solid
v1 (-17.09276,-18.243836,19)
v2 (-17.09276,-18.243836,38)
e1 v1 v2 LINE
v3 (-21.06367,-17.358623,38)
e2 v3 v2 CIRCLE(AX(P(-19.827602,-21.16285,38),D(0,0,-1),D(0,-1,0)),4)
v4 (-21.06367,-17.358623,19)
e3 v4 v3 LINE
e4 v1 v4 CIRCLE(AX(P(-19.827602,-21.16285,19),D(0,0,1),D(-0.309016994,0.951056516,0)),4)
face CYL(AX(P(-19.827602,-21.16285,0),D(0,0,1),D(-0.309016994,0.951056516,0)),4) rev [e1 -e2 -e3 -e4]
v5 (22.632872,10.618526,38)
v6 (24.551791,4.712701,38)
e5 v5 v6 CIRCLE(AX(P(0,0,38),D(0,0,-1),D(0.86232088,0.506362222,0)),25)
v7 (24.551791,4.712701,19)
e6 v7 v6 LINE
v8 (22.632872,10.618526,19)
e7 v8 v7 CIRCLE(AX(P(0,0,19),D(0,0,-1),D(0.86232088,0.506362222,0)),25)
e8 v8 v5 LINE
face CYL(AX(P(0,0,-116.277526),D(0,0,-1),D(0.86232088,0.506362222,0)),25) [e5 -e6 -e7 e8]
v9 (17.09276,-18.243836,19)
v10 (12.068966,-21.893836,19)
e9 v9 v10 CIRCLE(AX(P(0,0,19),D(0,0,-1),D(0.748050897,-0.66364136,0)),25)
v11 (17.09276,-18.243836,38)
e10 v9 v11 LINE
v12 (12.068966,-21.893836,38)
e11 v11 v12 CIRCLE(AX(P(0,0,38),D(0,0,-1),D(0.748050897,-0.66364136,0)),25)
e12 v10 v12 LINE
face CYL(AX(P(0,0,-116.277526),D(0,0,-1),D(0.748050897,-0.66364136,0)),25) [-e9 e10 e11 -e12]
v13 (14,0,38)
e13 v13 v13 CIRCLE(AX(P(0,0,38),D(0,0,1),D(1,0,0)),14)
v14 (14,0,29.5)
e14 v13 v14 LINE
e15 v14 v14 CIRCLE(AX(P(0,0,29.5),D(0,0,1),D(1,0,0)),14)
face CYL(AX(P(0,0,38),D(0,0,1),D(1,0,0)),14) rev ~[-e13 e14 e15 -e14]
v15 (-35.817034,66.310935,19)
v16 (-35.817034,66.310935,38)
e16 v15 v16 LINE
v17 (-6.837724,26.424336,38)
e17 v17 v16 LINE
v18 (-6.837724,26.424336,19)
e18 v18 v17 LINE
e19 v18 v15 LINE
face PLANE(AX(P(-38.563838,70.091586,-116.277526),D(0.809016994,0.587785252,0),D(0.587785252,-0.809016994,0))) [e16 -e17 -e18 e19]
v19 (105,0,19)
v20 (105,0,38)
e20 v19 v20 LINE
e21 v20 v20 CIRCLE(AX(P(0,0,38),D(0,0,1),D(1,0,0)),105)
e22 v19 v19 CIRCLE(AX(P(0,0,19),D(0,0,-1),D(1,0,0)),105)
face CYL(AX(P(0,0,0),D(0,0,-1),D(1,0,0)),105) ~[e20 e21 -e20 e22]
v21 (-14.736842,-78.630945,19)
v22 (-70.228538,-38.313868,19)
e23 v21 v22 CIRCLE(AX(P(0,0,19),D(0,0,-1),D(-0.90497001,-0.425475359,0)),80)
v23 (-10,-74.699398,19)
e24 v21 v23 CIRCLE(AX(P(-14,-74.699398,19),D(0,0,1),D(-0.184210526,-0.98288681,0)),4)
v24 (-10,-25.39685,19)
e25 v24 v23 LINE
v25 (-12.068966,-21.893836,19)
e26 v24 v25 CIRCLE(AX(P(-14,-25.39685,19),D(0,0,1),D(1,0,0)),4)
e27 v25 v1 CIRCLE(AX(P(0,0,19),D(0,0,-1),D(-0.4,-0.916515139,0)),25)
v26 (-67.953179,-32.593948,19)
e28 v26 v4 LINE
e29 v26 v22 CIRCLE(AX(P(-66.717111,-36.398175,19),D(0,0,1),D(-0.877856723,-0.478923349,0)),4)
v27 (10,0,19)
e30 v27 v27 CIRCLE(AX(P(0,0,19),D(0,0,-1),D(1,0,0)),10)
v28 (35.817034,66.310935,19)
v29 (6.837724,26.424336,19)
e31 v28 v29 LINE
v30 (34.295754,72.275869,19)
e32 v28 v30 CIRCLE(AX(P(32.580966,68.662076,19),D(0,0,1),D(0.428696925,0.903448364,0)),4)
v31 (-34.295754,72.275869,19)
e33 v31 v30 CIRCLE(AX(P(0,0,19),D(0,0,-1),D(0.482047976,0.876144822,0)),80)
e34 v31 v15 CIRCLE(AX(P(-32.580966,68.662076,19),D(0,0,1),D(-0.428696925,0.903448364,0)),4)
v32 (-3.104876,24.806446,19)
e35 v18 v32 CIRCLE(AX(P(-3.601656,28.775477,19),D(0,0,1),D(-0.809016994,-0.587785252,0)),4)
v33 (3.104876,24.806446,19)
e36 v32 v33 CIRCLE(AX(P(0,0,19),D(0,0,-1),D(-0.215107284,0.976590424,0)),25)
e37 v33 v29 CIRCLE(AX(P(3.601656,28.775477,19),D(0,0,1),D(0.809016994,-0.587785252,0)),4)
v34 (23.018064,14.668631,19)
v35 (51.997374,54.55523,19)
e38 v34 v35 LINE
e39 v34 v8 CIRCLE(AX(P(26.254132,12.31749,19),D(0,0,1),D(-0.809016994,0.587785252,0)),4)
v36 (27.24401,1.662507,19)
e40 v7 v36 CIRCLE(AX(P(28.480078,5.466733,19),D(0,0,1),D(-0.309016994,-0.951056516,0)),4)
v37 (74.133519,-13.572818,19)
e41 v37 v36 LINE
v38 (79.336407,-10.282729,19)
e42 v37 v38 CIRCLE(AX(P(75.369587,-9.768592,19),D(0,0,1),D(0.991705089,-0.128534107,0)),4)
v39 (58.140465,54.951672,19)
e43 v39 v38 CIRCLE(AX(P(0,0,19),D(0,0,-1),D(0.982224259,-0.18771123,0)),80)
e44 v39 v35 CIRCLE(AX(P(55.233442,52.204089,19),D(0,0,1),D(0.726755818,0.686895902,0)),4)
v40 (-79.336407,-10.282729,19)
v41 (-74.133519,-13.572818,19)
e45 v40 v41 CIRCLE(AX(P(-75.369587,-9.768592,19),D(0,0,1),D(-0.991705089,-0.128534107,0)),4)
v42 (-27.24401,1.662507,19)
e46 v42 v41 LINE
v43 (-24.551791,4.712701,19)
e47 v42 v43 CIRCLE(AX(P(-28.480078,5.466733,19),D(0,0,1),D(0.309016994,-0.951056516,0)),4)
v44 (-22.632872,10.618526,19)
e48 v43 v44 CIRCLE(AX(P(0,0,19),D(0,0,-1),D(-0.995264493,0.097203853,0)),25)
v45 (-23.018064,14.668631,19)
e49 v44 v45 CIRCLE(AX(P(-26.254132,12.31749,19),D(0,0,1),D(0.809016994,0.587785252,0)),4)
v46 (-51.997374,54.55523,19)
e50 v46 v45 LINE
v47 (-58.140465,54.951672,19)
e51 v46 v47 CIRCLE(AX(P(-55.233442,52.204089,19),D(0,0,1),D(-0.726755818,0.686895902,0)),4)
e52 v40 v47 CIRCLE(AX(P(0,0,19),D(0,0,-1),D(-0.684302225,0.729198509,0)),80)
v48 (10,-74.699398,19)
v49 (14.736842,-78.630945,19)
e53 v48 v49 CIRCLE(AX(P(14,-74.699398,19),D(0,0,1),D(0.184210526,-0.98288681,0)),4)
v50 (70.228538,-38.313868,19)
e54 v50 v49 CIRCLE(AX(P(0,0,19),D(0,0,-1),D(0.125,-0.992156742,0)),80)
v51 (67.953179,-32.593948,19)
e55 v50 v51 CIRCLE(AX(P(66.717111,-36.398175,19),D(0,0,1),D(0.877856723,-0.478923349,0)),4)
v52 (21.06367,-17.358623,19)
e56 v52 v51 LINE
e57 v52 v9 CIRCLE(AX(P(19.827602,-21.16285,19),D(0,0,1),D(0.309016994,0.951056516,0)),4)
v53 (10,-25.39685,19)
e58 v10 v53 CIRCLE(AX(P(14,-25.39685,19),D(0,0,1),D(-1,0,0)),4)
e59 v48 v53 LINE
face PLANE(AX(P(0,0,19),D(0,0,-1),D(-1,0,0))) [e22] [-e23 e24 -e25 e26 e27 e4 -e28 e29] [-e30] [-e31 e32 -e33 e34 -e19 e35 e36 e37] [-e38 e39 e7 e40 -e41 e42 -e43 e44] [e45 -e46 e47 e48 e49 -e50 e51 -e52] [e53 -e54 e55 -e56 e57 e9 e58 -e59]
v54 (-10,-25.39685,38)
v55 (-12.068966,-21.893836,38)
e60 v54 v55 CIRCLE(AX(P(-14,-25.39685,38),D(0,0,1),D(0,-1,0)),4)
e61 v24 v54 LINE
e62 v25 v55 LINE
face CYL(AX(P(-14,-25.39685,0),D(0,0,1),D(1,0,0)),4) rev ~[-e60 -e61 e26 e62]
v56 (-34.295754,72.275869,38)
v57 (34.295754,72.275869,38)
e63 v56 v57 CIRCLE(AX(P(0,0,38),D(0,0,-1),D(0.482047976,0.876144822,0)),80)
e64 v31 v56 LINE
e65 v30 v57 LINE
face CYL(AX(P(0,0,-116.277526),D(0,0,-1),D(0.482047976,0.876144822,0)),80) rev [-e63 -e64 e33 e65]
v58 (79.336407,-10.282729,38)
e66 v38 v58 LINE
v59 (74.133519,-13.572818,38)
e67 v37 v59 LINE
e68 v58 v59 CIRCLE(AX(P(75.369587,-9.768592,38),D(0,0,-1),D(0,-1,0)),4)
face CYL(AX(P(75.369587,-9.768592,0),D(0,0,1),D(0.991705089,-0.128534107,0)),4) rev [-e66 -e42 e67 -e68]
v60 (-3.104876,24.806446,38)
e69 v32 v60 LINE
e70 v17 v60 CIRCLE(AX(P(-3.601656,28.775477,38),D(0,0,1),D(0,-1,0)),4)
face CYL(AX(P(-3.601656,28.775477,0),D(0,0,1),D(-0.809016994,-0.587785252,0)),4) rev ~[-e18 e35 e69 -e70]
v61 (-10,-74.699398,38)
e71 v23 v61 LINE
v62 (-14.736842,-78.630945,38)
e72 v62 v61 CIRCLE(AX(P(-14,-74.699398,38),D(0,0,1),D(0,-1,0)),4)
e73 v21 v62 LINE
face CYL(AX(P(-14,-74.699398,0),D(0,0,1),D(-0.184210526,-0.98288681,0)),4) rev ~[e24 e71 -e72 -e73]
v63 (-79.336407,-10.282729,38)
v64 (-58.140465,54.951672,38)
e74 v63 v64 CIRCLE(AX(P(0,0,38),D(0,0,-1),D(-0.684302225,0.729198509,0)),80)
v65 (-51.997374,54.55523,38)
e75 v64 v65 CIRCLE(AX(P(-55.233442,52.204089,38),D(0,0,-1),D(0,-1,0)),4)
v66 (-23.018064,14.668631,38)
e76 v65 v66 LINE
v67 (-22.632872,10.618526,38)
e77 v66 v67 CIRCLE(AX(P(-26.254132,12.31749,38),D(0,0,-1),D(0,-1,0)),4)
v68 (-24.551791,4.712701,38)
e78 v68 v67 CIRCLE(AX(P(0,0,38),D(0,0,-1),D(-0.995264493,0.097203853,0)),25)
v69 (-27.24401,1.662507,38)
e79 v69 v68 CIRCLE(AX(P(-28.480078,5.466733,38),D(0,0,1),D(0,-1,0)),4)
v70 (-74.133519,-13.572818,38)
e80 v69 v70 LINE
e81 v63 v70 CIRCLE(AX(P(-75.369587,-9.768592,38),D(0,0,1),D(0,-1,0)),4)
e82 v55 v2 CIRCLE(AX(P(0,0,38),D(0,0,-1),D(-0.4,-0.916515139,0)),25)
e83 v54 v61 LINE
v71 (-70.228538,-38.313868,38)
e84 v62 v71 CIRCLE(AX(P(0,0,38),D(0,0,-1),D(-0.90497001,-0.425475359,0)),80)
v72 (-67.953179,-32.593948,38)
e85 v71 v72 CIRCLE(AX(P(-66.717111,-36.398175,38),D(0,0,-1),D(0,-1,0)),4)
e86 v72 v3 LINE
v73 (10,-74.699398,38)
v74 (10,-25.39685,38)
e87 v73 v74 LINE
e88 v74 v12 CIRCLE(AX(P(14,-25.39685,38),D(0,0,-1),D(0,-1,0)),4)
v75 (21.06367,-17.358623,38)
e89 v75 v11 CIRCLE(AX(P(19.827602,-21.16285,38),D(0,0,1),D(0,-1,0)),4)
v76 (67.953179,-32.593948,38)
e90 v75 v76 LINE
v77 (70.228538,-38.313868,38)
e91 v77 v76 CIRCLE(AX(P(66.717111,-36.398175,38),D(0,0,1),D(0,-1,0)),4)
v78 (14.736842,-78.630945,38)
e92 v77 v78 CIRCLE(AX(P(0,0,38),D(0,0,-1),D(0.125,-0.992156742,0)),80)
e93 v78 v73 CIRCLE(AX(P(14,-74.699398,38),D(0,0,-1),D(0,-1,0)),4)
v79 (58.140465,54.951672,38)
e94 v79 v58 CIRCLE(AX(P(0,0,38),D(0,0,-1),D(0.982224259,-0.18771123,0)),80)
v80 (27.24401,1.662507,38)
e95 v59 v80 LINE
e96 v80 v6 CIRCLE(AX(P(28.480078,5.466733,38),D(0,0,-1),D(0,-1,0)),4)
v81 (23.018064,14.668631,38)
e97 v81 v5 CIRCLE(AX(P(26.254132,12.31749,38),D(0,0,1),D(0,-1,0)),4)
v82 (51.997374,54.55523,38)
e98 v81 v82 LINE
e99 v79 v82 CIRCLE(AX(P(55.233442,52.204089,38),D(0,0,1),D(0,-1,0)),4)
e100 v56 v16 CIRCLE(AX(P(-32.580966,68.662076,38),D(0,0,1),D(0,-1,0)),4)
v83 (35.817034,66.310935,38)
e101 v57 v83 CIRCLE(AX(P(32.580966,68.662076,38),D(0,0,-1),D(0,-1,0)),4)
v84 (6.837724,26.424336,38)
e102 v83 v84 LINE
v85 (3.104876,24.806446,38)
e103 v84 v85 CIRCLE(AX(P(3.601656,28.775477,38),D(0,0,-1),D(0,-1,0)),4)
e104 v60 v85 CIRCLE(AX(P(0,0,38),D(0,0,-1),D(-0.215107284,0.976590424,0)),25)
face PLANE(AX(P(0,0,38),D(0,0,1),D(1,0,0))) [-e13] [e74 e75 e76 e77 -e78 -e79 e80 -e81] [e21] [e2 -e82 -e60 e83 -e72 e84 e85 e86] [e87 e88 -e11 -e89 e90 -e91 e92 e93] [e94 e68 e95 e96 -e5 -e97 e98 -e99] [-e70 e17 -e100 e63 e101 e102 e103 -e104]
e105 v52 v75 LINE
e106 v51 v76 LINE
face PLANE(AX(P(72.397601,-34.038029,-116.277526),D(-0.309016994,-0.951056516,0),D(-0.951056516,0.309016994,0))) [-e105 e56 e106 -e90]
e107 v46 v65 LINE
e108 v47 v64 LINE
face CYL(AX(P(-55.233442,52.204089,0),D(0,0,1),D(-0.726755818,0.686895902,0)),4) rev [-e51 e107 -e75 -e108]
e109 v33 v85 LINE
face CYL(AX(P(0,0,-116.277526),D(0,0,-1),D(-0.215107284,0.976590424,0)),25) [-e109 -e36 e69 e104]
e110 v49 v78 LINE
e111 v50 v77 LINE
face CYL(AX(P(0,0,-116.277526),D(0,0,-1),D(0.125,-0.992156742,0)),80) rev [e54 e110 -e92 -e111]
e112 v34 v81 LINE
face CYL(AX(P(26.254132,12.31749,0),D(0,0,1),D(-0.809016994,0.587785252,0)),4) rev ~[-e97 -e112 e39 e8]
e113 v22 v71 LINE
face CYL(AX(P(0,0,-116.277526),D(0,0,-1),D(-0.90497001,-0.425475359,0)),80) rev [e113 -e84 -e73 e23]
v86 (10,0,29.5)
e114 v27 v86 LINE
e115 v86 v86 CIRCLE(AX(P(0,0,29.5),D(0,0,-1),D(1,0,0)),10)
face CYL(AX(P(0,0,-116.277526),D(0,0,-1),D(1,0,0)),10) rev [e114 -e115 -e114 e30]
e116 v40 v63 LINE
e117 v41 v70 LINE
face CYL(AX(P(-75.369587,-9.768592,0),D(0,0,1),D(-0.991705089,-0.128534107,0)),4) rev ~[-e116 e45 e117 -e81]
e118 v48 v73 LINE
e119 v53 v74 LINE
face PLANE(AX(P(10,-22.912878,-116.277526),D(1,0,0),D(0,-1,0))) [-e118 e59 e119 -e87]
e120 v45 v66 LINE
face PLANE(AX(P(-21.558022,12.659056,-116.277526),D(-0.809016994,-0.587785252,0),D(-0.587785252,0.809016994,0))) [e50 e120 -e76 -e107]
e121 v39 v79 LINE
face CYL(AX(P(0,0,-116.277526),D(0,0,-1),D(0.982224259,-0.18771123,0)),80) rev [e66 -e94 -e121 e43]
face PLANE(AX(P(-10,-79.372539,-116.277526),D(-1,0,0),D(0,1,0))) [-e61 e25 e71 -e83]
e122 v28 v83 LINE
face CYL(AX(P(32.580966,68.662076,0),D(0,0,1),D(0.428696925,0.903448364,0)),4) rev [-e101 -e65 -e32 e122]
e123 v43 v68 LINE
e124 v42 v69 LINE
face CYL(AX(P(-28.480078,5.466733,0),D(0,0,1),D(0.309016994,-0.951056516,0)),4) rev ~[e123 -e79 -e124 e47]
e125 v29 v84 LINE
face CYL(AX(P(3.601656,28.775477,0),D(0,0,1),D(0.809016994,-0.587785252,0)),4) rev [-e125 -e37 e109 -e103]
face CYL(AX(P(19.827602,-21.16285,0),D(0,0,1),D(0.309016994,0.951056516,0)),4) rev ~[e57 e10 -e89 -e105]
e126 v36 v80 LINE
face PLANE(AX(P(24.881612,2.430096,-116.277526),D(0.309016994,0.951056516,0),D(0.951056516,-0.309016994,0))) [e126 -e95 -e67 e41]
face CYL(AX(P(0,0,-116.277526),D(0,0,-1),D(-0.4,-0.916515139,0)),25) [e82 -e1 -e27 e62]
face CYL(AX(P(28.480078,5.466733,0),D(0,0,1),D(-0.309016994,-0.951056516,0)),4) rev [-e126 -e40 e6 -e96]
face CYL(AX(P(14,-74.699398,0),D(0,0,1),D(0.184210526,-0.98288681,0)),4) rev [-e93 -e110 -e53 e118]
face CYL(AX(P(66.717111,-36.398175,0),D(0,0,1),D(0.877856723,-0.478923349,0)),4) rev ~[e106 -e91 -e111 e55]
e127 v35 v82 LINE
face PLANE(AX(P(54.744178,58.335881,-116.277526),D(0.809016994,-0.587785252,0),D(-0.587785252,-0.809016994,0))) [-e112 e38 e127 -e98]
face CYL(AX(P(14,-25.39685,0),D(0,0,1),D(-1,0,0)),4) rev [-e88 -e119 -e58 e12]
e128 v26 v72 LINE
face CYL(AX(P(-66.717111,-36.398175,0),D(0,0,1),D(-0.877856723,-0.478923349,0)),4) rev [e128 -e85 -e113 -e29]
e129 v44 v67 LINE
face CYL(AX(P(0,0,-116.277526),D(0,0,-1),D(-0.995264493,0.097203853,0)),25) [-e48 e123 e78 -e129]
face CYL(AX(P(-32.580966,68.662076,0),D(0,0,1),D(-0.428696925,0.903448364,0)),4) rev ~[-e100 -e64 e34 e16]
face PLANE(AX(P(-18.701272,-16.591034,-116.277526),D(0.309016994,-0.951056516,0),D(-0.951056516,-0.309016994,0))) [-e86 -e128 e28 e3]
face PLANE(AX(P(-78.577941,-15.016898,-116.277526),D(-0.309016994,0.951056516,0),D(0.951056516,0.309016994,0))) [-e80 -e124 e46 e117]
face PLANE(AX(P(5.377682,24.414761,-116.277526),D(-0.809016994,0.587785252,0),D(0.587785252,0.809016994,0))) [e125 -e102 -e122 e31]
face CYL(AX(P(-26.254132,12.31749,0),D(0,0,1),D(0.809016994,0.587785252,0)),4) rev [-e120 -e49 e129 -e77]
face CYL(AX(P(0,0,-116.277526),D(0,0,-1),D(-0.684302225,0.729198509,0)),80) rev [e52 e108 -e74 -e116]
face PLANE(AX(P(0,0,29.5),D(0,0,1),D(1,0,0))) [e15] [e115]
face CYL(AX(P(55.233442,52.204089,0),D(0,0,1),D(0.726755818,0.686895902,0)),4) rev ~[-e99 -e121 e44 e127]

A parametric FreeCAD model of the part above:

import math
import FreeCAD as App
import Part
import Sketcher
Q = App.Units.Quantity


def edges_at(feature, points):
    """Names of the edges that pass closest to the given points."""
    edges = feature.Shape.Edges
    near = lambda p: min(range(len(edges)), key=lambda i: edges[i].distToShape(Part.Vertex(*p))[0])
    return sorted({f"Edge{near(p) + 1}" for p in points})

doc = App.newDocument("Part")
body = doc.addObject("PartDesign::Body", "Body")

# Sketch on XY plane
sketch1 = body.newObject("Sketcher::SketchObject", "Sketch")
sketch1.AttachmentSupport = (doc.getObject("XY_Plane"), [""])
sketch1.MapMode = "FlatFace"
sketch1.addGeometry(Part.Circle(App.Vector(0, 0, 0), App.Vector(0, 0, 1), 105), False)
sketch1.addConstraint([
    Sketcher.Constraint("Coincident", 0, 3, -1, 1),
    Sketcher.Constraint("Diameter", 0, Q("210 mm")),
])
pad1 = body.newObject("PartDesign::Pad", "Pad")
pad1.Profile = sketch1
pad1.Length = 38

# Sketch on XY plane
sketch2 = body.newObject("Sketcher::SketchObject", "Sketch001")
sketch2.AttachmentSupport = (doc.getObject("XY_Plane"), [""])
sketch2.MapMode = "FlatFace"
sketch2.AttachmentOffset = App.Placement(App.Vector(0, 0, 38), App.Rotation())
sketch2.addGeometry([
    Part.LineSegment(App.Vector(5, 24, 0), App.Vector(39, 70, 0)),  # 0
    Part.ArcOfCircle(Part.Circle(App.Vector(0, 0, 0), App.Vector(0, 0, 1), 80), math.radians(61), math.radians(119)),  # 1
    Part.LineSegment(App.Vector(-39, 70, 0), App.Vector(-5, 24, 0)),  # 2
    Part.ArcOfCircle(Part.Circle(App.Vector(0, 0, 0), App.Vector(0, 0, 1), 25), math.radians(78), math.radians(102)),  # 3
    Part.LineSegment(App.Vector(25, 2, 0), App.Vector(79, -15, 0)),  # 4
    Part.ArcOfCircle(Part.Circle(App.Vector(0, 0, 0), App.Vector(0, 0, 1), 80), math.radians(-11), math.radians(47)),  # 5
    Part.LineSegment(App.Vector(55, 58, 0), App.Vector(22, 13, 0)),  # 6
    Part.ArcOfCircle(Part.Circle(App.Vector(0, 0, 0), App.Vector(0, 0, 1), 25), math.radians(6), math.radians(30)),  # 7
    Part.LineSegment(App.Vector(10, -23, 0), App.Vector(10, -79, 0)),  # 8
    Part.ArcOfCircle(Part.Circle(App.Vector(0, 0, 0), App.Vector(0, 0, 1), 80), math.radians(-83), math.radians(-25)),  # 9
    Part.LineSegment(App.Vector(72, -34, 0), App.Vector(19, -17, 0)),  # 10
    Part.ArcOfCircle(Part.Circle(App.Vector(0, 0, 0), App.Vector(0, 0, 1), 25), math.radians(-66), math.radians(-42)),  # 11
    Part.LineSegment(App.Vector(-19, -17, 0), App.Vector(-72, -34, 0)),  # 12
    Part.ArcOfCircle(Part.Circle(App.Vector(0, 0, 0), App.Vector(0, 0, 1), 80), math.radians(-155), math.radians(-97)),  # 13
    Part.LineSegment(App.Vector(-10, -79, 0), App.Vector(-10, -23, 0)),  # 14
    Part.ArcOfCircle(Part.Circle(App.Vector(0, 0, 0), App.Vector(0, 0, 1), 25), math.radians(-138), math.radians(-114)),  # 15
    Part.LineSegment(App.Vector(-22, 13, 0), App.Vector(-55, 58, 0)),  # 16
    Part.ArcOfCircle(Part.Circle(App.Vector(0, 0, 0), App.Vector(0, 0, 1), 80), math.radians(133), math.radians(191)),  # 17
    Part.LineSegment(App.Vector(-79, -15, 0), App.Vector(-25, 2, 0)),  # 18
    Part.ArcOfCircle(Part.Circle(App.Vector(0, 0, 0), App.Vector(0, 0, 1), 25), math.radians(150), math.radians(174)),  # 19
], False)
sketch2.addConstraint([
    Sketcher.Constraint("Coincident", 0, 2, 1, 1),
    Sketcher.Constraint("Coincident", 1, 2, 2, 1),
    Sketcher.Constraint("Coincident", 2, 2, 3, 2),
    Sketcher.Constraint("Coincident", 3, 1, 0, 1),
    Sketcher.Constraint("Coincident", 4, 2, 5, 1),
    Sketcher.Constraint("Coincident", 5, 2, 6, 1),
    Sketcher.Constraint("Coincident", 6, 2, 7, 2),
    Sketcher.Constraint("Coincident", 7, 1, 4, 1),
    Sketcher.Constraint("Coincident", 8, 2, 9, 1),
    Sketcher.Constraint("Coincident", 9, 2, 10, 1),
    Sketcher.Constraint("Coincident", 10, 2, 11, 2),
    Sketcher.Constraint("Coincident", 11, 1, 8, 1),
    Sketcher.Constraint("Coincident", 12, 2, 13, 1),
    Sketcher.Constraint("Coincident", 13, 2, 14, 1),
    Sketcher.Constraint("Coincident", 14, 2, 15, 2),
    Sketcher.Constraint("Coincident", 15, 1, 12, 1),
    Sketcher.Constraint("Coincident", 16, 2, 17, 1),
    Sketcher.Constraint("Coincident", 17, 2, 18, 1),
    Sketcher.Constraint("Coincident", 18, 2, 19, 2),
    Sketcher.Constraint("Coincident", 19, 1, 16, 1),
    Sketcher.Constraint("Vertical", 8),
    Sketcher.Constraint("Vertical", 14),
    Sketcher.Constraint("Coincident", 1, 3, -1, 1),
    Sketcher.Constraint("Coincident", 3, 3, -1, 1),
    Sketcher.Constraint("Coincident", 5, 3, -1, 1),
    Sketcher.Constraint("Coincident", 7, 3, -1, 1),
    Sketcher.Constraint("Coincident", 9, 3, -1, 1),
    Sketcher.Constraint("Coincident", 11, 3, -1, 1),
    Sketcher.Constraint("Coincident", 13, 3, -1, 1),
    Sketcher.Constraint("Coincident", 15, 3, -1, 1),
    Sketcher.Constraint("Coincident", 17, 3, -1, 1),
    Sketcher.Constraint("Coincident", 19, 3, -1, 1),
    Sketcher.Constraint("Equal", 1, 5),
    Sketcher.Constraint("Equal", 3, 7),
    Sketcher.Constraint("Equal", 5, 9),
    Sketcher.Constraint("Equal", 7, 11),
    Sketcher.Constraint("Equal", 9, 13),
    Sketcher.Constraint("Equal", 11, 15),
    Sketcher.Constraint("Equal", 13, 17),
    Sketcher.Constraint("Equal", 15, 19),
    Sketcher.Constraint("Parallel", 0, 6),
    Sketcher.Constraint("Parallel", 4, 10),
    Sketcher.Constraint("Parallel", 2, 16),
    Sketcher.Constraint("Parallel", 12, 18),
    Sketcher.Constraint("Horizontal", 0, 2, 1, 2),
    Sketcher.Constraint("Horizontal", 2, 2, 3, 1),
    Sketcher.Constraint("Horizontal", 9, 2, 12, 2),
    Sketcher.Constraint("Horizontal", 8, 2, 13, 2),
    Sketcher.Constraint("Horizontal", 10, 2, 15, 1),
    Sketcher.Constraint("Horizontal", 5, 2, 16, 2),
    Sketcher.Constraint("Horizontal", 4, 2, 17, 2),
    Sketcher.Constraint("Equal", 2, 4),
    Sketcher.Constraint("Equal", 4, 6),
    Sketcher.Constraint("Equal", 6, 10),
    Sketcher.Constraint("Radius", 1, Q("80 mm")),
    Sketcher.Constraint("Radius", 3, Q("25 mm")),
    Sketcher.Constraint("Angle", 0, Q("54 deg")),
    Sketcher.Constraint("Angle", 4, Q("-18 deg")),
    Sketcher.Constraint("DistanceX", -1, 1, 8, 2, Q("10 mm")),
    Sketcher.Constraint("DistanceY", 4, 2, -1, 1, Q("15.016898 mm")),
])
pocket1 = body.newObject("PartDesign::Pocket", "Pocket")
pocket1.Profile = sketch2
pocket1.Type = "ThroughAll"
pocket1.Midplane = True

# Sketch on XY plane
sketch3 = body.newObject("Sketcher::SketchObject", "Sketch002")
sketch3.AttachmentSupport = (doc.getObject("XY_Plane"), [""])
sketch3.MapMode = "FlatFace"
sketch3.AttachmentOffset = App.Placement(App.Vector(0, 0, 38), App.Rotation())
sketch3.addGeometry(Part.Circle(App.Vector(0, 0, 0), App.Vector(0, 0, 1), 10), False)
sketch3.addConstraint([
    Sketcher.Constraint("Coincident", 0, 3, -1, 1),
    Sketcher.Constraint("Diameter", 0, Q("20 mm")),
])
pocket2 = body.newObject("PartDesign::Pocket", "Pocket001")
pocket2.Profile = sketch3
pocket2.Type = "ThroughAll"
pocket2.Midplane = True

# Sketch on XY plane
sketch4 = body.newObject("Sketcher::SketchObject", "Sketch003")
sketch4.AttachmentSupport = (doc.getObject("XY_Plane"), [""])
sketch4.MapMode = "FlatFace"
sketch4.AttachmentOffset = App.Placement(App.Vector(0, 0, 38), App.Rotation())
sketch4.addGeometry(Part.Circle(App.Vector(0, 0, 0), App.Vector(0, 0, 1), 14), False)
sketch4.addConstraint([
    Sketcher.Constraint("Coincident", 0, 3, -1, 1),
    Sketcher.Constraint("Diameter", 0, Q("28 mm")),
])
pocket3 = body.newObject("PartDesign::Pocket", "Pocket002")
pocket3.Profile = sketch4
pocket3.Length = 8.5

# Sketch on XY plane
sketch5 = body.newObject("Sketcher::SketchObject", "Sketch004")
sketch5.AttachmentSupport = (doc.getObject("XY_Plane"), [""])
sketch5.MapMode = "FlatFace"
sketch5.AttachmentOffset = App.Placement(App.Vector(0, 0, 8.5), App.Rotation())
sketch5.addGeometry(Part.Circle(App.Vector(0, 0, 0), App.Vector(0, 0, 1), 14), False)
sketch5.addConstraint([
    Sketcher.Constraint("Coincident", 0, 3, -1, 1),
    Sketcher.Constraint("Diameter", 0, Q("28 mm")),
])
pocket4 = body.newObject("PartDesign::Pocket", "Pocket003")
pocket4.Profile = sketch5
pocket4.Length = 8.5
doc.recompute()

fillet = body.newObject("PartDesign::Fillet", "Fillet")
fillet.Base = (pocket4, edges_at(pocket4, [
    (-78.578, -15.017, 19),
    (-54.744, 58.336, 19),
    (-21.558, 12.659, 19),
    (-24.882, 2.43, 19),
    (-10, -79.373, 19),
    (-72.398, -34.038, 19),
    (-18.701, -16.591, 19),
    (-10, -22.913, 19),
    (72.398, -34.038, 19),
    (10, -79.373, 19),
    (10, -22.913, 19),
    (18.701, -16.591, 19),
    (54.744, 58.336, 19),
    (78.578, -15.017, 19),
    (24.882, 2.43, 19),
    (21.558, 12.659, 19),
    (-38.564, 70.092, 19),
    (38.564, 70.092, 19),
    (5.378, 24.415, 19),
    (-5.378, 24.415, 19),
]))
fillet.Radius = 4

# Sketch on XY plane
sketch6 = body.newObject("Sketcher::SketchObject", "Sketch005")
sketch6.AttachmentSupport = (doc.getObject("XY_Plane"), [""])
sketch6.MapMode = "FlatFace"
sketch6.addGeometry(Part.Circle(App.Vector(0, 0, 0), App.Vector(0, 0, 1), 105), False)
sketch6.addConstraint([
    Sketcher.Constraint("Coincident", 0, 3, -1, 1),
    Sketcher.Constraint("Diameter", 0, Q("210 mm")),
])
pocket5 = body.newObject("PartDesign::Pocket", "Pocket004")
pocket5.Profile = sketch6
pocket5.Length = 19
pocket5.Reversed = True

doc.recompute()
